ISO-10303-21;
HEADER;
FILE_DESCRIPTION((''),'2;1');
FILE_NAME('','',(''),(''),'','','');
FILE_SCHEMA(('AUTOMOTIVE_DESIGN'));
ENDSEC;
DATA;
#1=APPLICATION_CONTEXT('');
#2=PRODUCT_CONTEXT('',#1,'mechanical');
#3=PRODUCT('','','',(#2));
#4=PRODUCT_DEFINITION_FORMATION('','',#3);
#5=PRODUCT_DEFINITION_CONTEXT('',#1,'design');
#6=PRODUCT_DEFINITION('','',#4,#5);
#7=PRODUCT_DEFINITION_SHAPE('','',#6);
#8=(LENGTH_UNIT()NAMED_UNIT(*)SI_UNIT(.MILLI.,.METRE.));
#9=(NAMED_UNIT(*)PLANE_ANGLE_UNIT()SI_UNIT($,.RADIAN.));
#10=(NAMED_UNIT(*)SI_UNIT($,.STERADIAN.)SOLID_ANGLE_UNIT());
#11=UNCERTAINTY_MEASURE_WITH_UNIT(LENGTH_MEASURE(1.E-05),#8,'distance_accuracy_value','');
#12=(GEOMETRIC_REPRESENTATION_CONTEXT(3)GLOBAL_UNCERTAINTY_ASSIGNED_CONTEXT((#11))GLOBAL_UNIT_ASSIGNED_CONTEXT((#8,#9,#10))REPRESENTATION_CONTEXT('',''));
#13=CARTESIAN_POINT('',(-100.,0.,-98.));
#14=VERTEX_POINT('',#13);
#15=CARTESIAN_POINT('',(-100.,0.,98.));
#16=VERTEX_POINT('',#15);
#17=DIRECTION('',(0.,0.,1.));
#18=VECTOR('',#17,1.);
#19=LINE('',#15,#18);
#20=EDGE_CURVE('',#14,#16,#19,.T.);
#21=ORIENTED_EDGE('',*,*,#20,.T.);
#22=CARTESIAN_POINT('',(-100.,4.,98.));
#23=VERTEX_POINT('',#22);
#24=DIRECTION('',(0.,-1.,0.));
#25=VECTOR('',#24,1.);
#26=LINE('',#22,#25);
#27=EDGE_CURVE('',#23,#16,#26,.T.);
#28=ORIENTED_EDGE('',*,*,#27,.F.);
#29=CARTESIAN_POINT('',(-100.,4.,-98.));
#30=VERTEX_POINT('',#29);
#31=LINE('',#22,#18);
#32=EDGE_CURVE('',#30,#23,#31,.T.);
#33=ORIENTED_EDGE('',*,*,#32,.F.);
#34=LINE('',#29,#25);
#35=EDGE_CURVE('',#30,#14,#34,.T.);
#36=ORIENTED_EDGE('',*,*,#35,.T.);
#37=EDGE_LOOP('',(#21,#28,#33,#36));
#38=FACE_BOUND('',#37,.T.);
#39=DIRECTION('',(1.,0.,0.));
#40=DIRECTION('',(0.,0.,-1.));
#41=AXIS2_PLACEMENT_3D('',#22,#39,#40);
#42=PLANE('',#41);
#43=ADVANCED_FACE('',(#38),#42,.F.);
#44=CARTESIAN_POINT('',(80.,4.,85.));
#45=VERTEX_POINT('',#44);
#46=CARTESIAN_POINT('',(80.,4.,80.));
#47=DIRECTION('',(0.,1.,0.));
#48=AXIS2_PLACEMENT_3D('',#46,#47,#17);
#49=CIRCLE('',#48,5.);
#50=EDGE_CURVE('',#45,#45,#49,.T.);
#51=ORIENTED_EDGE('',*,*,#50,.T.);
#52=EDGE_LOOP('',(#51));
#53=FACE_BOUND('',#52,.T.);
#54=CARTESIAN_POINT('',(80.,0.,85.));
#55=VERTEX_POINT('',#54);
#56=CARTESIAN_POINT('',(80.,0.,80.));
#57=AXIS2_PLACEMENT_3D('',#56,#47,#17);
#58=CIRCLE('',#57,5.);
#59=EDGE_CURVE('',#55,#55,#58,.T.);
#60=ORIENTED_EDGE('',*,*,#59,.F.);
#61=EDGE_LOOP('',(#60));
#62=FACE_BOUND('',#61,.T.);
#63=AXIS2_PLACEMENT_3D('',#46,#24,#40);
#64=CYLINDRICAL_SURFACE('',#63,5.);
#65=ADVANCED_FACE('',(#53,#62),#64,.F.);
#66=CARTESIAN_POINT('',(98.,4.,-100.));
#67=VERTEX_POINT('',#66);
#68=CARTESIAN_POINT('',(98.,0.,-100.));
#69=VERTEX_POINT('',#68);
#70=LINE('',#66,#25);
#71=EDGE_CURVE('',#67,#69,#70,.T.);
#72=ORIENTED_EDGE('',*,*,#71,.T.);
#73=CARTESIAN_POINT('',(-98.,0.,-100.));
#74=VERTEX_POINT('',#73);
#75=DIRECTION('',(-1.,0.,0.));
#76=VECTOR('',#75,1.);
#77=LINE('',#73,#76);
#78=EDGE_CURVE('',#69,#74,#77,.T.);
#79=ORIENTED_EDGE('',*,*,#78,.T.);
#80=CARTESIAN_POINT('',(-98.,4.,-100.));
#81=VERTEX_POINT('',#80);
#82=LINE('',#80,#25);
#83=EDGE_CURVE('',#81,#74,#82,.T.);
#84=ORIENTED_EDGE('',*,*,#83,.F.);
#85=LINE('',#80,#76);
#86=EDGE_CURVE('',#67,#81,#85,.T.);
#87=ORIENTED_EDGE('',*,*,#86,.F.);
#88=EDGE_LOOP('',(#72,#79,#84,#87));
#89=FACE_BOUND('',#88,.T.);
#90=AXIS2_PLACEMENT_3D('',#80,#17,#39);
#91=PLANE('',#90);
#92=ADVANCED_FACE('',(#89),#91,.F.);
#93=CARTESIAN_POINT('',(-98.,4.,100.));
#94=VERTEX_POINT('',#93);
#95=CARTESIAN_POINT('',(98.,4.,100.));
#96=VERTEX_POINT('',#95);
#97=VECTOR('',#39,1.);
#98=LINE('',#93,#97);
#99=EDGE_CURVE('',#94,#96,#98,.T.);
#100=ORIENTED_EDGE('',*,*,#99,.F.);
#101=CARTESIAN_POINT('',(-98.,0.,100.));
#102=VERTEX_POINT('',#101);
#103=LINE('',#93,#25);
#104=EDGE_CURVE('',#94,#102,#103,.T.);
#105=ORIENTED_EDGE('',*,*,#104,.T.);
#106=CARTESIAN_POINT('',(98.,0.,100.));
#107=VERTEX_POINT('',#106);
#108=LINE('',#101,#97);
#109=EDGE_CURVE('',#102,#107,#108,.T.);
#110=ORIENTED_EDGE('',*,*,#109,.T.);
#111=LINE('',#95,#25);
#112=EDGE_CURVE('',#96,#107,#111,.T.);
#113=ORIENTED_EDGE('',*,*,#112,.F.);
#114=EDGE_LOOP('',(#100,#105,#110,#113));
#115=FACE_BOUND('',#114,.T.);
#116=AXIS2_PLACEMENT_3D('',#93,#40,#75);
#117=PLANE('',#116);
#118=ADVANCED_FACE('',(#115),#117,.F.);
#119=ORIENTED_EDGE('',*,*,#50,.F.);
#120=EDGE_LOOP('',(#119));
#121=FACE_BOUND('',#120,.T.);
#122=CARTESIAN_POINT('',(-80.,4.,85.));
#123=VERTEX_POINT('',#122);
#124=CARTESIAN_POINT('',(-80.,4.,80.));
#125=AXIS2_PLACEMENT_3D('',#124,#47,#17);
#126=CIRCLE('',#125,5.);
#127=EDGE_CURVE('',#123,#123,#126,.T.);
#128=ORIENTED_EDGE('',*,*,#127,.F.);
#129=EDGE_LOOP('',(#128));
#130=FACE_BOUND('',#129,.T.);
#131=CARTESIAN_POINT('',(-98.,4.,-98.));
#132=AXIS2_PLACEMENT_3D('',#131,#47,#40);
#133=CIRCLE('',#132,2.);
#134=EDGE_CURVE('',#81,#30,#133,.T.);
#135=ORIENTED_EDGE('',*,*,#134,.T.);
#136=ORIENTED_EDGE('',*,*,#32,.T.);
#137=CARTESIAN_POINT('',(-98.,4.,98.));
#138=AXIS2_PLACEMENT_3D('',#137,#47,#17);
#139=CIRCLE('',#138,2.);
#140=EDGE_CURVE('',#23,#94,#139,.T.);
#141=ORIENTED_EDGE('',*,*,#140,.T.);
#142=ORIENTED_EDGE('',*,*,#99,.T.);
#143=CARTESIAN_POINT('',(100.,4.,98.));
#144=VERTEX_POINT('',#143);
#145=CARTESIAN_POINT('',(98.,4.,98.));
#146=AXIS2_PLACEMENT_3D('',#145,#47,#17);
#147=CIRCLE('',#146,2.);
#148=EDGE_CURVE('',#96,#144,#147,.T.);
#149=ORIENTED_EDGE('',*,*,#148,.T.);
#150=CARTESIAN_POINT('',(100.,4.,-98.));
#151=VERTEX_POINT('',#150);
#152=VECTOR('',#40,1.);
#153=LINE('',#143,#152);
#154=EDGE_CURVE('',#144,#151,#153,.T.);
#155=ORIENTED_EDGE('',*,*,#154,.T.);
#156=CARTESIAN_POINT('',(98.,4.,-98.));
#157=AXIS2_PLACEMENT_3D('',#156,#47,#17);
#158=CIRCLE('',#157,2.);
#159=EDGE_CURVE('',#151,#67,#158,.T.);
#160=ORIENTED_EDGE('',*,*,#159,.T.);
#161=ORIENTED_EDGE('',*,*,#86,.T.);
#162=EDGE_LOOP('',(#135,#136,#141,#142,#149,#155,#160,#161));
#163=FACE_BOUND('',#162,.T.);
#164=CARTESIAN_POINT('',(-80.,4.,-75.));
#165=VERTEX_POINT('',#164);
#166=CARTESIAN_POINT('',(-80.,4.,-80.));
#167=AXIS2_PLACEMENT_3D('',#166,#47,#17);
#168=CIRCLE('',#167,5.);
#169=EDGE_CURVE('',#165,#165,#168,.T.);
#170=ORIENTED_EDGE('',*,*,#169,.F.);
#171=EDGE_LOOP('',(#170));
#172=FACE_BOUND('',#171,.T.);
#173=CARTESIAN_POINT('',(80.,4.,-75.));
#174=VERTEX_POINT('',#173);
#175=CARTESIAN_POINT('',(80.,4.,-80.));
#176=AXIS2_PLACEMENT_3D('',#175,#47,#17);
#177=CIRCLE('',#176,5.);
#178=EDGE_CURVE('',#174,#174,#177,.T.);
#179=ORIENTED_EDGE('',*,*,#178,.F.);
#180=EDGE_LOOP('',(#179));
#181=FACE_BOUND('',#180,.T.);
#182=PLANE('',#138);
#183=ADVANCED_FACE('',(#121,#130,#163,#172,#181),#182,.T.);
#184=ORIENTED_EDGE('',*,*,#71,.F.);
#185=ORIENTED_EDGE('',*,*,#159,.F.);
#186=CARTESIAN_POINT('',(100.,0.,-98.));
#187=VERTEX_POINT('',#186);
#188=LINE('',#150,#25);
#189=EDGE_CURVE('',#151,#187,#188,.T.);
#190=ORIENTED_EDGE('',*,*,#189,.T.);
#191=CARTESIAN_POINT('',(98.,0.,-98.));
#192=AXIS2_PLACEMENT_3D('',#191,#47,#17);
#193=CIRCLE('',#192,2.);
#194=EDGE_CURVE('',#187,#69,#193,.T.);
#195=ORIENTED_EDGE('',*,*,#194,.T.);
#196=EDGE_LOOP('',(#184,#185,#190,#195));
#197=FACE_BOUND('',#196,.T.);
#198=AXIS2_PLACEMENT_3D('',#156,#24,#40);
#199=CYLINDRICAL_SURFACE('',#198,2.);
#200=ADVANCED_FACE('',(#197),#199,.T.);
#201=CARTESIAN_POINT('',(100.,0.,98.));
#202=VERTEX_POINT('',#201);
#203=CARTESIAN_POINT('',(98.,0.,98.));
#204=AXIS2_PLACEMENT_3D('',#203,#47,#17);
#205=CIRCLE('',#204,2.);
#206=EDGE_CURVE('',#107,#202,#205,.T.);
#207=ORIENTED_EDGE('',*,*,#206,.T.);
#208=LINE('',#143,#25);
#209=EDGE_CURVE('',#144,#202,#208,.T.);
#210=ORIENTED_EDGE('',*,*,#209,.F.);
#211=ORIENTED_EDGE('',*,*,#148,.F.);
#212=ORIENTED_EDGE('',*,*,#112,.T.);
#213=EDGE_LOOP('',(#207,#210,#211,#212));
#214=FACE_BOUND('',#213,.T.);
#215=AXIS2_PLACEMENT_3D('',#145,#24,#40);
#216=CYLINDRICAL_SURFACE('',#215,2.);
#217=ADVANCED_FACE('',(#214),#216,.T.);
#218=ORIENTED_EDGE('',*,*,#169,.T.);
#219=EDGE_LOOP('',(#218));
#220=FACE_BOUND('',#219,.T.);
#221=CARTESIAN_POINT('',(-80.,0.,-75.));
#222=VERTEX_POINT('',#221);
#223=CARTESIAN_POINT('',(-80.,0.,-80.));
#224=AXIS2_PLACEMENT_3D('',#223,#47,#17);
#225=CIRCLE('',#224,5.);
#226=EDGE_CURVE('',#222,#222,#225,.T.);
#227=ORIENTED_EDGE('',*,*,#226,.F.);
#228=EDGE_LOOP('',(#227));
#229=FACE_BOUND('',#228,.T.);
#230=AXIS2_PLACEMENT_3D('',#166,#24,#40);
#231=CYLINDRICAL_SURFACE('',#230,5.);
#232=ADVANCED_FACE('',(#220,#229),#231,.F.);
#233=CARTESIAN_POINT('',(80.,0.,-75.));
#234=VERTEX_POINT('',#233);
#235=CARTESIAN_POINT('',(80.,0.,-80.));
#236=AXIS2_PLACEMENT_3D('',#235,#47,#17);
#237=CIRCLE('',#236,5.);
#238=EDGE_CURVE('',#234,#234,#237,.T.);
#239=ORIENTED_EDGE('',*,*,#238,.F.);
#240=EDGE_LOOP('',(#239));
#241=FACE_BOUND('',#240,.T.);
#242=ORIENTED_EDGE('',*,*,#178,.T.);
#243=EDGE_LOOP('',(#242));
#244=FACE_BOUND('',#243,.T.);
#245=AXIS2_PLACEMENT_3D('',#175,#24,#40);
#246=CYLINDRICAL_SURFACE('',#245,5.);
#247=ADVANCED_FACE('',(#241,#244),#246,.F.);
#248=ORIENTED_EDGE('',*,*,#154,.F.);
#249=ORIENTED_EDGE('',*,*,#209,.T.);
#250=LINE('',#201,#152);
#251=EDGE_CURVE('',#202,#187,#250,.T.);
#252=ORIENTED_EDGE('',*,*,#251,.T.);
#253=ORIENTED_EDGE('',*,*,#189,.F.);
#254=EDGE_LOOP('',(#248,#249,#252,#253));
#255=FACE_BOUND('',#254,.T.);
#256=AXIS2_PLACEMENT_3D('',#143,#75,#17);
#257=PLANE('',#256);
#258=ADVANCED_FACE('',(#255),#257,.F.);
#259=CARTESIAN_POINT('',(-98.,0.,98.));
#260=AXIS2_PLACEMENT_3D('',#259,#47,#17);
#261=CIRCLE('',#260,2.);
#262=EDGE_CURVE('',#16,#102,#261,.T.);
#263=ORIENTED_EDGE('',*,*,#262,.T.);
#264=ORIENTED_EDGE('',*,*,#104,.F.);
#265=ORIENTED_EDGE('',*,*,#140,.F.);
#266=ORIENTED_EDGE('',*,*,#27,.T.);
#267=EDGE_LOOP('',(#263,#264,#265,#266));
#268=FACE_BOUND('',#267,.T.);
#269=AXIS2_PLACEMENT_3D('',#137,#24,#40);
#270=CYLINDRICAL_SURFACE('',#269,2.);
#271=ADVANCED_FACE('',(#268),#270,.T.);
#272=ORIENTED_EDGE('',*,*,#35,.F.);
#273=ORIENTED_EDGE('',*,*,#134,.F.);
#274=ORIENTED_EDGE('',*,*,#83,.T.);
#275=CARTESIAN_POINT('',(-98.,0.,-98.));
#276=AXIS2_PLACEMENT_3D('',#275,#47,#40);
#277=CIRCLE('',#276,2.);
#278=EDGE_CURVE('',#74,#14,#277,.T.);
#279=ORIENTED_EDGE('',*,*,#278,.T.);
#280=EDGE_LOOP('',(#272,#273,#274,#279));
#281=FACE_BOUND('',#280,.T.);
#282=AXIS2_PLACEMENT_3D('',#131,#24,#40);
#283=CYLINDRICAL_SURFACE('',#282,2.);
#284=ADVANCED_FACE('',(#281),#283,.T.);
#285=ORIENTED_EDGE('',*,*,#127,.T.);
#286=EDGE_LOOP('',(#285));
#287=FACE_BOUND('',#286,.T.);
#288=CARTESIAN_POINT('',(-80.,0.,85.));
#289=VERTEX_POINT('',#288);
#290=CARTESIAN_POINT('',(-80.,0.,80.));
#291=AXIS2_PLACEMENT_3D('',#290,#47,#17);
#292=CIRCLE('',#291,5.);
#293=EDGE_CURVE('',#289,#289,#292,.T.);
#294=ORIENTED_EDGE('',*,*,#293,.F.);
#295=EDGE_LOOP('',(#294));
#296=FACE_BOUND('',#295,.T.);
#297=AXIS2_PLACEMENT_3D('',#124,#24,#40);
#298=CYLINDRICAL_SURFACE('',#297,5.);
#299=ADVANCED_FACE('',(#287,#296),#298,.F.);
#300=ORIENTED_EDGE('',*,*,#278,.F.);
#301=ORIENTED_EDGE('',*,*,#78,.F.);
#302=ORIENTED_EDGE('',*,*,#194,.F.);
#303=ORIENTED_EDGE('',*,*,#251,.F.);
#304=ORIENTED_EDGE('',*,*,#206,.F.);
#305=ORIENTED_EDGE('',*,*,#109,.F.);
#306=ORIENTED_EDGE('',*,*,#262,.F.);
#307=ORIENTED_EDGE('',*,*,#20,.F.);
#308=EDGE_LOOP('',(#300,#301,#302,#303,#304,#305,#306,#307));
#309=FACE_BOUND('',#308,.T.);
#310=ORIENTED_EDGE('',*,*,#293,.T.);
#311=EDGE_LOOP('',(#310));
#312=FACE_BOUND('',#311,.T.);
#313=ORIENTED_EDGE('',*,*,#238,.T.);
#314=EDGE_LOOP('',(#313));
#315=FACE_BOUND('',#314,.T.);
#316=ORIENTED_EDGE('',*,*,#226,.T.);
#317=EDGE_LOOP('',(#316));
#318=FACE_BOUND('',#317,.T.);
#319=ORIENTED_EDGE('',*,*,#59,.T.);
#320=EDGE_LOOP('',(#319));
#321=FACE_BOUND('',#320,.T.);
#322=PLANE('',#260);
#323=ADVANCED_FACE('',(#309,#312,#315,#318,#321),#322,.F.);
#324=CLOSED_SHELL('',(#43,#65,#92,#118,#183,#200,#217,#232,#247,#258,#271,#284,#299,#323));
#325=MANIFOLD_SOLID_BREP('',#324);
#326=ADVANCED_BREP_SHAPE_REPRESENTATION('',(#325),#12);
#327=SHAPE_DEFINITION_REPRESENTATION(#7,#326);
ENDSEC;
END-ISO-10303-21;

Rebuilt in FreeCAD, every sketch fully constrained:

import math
import FreeCAD as App
import Part
import Sketcher

V = App.Vector
Q = App.Units.Quantity

doc = App.newDocument("Part")
body = doc.addObject("PartDesign::Body", "Body")

# Sketch on XZ plane
sketch1 = body.newObject("Sketcher::SketchObject", "Sketch")
sketch1.AttachmentSupport = (doc.getObject("XZ_Plane"), [""])
sketch1.MapMode = "FlatFace"
sketch1.addGeometry([
    Part.LineSegment(V(-98, 100, 0), V(98, 100, 0)),  # 0
    Part.ArcOfCircle(Part.Circle(V(98, 98, 0), V(0, 0, 1), 2), math.radians(0), math.radians(90)),  # 1
    Part.LineSegment(V(100, 98, 0), V(100, -98, 0)),  # 2
    Part.ArcOfCircle(Part.Circle(V(98, -98, 0), V(0, 0, 1), 2), math.radians(-90), math.radians(0)),  # 3
    Part.LineSegment(V(98, -100, 0), V(-98, -100, 0)),  # 4
    Part.ArcOfCircle(Part.Circle(V(-98, -98, 0), V(0, 0, 1), 2), math.radians(-180), math.radians(-90)),  # 5
    Part.LineSegment(V(-100, -98, 0), V(-100, 98, 0)),  # 6
    Part.ArcOfCircle(Part.Circle(V(-98, 98, 0), V(0, 0, 1), 2), math.radians(90), math.radians(180)),  # 7
    Part.Circle(V(-80, 80, 0), V(0, 0, 1), 5),  # 8
    Part.Circle(V(80, 80, 0), V(0, 0, 1), 5),  # 9
    Part.Circle(V(-80, -80, 0), V(0, 0, 1), 5),  # 10
    Part.Circle(V(80, -80, 0), V(0, 0, 1), 5),  # 11
], False)
sketch1.addConstraint([
    Sketcher.Constraint("Tangent", 0, 2, 1, 2),
    Sketcher.Constraint("Tangent", 1, 1, 2, 1),
    Sketcher.Constraint("Tangent", 2, 2, 3, 2),
    Sketcher.Constraint("Tangent", 3, 1, 4, 1),
    Sketcher.Constraint("Tangent", 4, 2, 5, 2),
    Sketcher.Constraint("Tangent", 5, 1, 6, 1),
    Sketcher.Constraint("Tangent", 6, 2, 7, 2),
    Sketcher.Constraint("Tangent", 7, 1, 0, 1),
    Sketcher.Constraint("Horizontal", 0),
    Sketcher.Constraint("Vertical", 2),
    Sketcher.Constraint("Horizontal", 4),
    Sketcher.Constraint("Vertical", 6),
    Sketcher.Constraint("Equal", 1, 3),
    Sketcher.Constraint("Equal", 3, 5),
    Sketcher.Constraint("Equal", 5, 7),
    Sketcher.Constraint("Equal", 8, 9),
    Sketcher.Constraint("Equal", 9, 10),
    Sketcher.Constraint("Equal", 10, 11),
    Sketcher.Constraint("Symmetric", 1, 3, 5, 3, -1, 1),
    Sketcher.Constraint("Symmetric", 9, 3, 10, 3, -1, 1),
    Sketcher.Constraint("Symmetric", 8, 3, 11, 3, -1, 1),
    Sketcher.Constraint("Symmetric", 8, 3, 9, 3, -2),
    Sketcher.Constraint("Equal", 4, 2),
    Sketcher.Constraint("Diameter", 8, Q("10 mm")),
    Sketcher.Constraint("Radius", 1, Q("2 mm")),
    Sketcher.Constraint("DistanceX", 0, 1, 0, 2, Q("196 mm")),
    Sketcher.Constraint("DistanceX", 8, 3, -1, 1, Q("80 mm")),
    Sketcher.Constraint("DistanceY", -1, 1, 8, 3, Q("80 mm")),
])
pad1 = body.newObject("PartDesign::Pad", "Pad")
pad1.Profile = sketch1
pad1.Length = 4
pad1.Reversed = True

doc.recompute()
